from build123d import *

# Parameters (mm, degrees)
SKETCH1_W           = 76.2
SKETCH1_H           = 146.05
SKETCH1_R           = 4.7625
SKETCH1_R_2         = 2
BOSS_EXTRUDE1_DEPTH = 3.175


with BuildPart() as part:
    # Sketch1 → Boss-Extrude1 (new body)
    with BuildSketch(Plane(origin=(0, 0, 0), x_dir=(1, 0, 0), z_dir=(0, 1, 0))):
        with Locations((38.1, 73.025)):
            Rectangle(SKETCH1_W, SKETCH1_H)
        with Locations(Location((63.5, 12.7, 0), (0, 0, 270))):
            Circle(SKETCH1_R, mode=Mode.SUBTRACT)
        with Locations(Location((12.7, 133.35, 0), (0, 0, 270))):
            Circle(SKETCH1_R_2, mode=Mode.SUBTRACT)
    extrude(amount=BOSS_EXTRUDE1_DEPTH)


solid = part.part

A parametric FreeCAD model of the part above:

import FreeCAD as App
import Part
import Sketcher
Q = App.Units.Quantity


def add_polygon(sketch, points):
    """Adds a closed chain of lines whose ends are joined by coincident constraints."""
    first, n = sketch.GeometryCount, len(points)
    for a, b in zip(points, points[1:] + points[:1]):
        sketch.addGeometry(Part.LineSegment(App.Vector(*a, 0), App.Vector(*b, 0)), False)
    for i in range(n):
        sketch.addConstraint(Sketcher.Constraint("Coincident", first + i, 2, first + (i + 1) % n, 1))

doc = App.newDocument("Part")
body = doc.addObject("PartDesign::Body", "Body")

# Sketch on XZ plane
sketch1 = body.newObject("Sketcher::SketchObject", "Sketch")
sketch1.AttachmentSupport = (doc.getObject("XZ_Plane"), [""])
sketch1.MapMode = "FlatFace"
add_polygon(sketch1, [(0, -146.1), (0, 0), (76.2, 0), (76.2, -146.1)])  # lines 0-3
sketch1.addGeometry(Part.Circle(App.Vector(63.5, -12.7, 0), App.Vector(0, 0, 1), 4.8), False)  # 4
sketch1.addGeometry(Part.Circle(App.Vector(12.7, -133.3, 0), App.Vector(0, 0, 1), 2), False)  # 5
sketch1.addConstraint([
    Sketcher.Constraint("Vertical", 0),
    Sketcher.Constraint("Horizontal", 1),
    Sketcher.Constraint("Vertical", 2),
    Sketcher.Constraint("Horizontal", 3),
    Sketcher.Constraint("Coincident", 0, 2, -1, 1),
    Sketcher.Constraint("DistanceX", 1, 1, 1, 2, Q("3 in")),
    Sketcher.Constraint("Diameter", 4, Q("0.375 in")),
    Sketcher.Constraint("DistanceX", 5, 3, 4, 3, Q("2 in")),
    Sketcher.Constraint("DistanceY", 0, 1, 0, 2, Q("5.75 in")),
    Sketcher.Constraint("DistanceX", -1, 1, 4, 3, Q("2.5 in")),
    Sketcher.Constraint("DistanceY", 4, 3, -1, 1, Q("0.5 in")),
    Sketcher.Constraint("DistanceY", 2, 2, 5, 3, Q("0.5 in")),
    Sketcher.Constraint("Diameter", 5, Q("4 mm")),
])
pad1 = body.newObject("PartDesign::Pad", "Pad")
pad1.Profile = sketch1
pad1.Length = Q("0.125 in")
pad1.Reversed = True

doc.recompute()
